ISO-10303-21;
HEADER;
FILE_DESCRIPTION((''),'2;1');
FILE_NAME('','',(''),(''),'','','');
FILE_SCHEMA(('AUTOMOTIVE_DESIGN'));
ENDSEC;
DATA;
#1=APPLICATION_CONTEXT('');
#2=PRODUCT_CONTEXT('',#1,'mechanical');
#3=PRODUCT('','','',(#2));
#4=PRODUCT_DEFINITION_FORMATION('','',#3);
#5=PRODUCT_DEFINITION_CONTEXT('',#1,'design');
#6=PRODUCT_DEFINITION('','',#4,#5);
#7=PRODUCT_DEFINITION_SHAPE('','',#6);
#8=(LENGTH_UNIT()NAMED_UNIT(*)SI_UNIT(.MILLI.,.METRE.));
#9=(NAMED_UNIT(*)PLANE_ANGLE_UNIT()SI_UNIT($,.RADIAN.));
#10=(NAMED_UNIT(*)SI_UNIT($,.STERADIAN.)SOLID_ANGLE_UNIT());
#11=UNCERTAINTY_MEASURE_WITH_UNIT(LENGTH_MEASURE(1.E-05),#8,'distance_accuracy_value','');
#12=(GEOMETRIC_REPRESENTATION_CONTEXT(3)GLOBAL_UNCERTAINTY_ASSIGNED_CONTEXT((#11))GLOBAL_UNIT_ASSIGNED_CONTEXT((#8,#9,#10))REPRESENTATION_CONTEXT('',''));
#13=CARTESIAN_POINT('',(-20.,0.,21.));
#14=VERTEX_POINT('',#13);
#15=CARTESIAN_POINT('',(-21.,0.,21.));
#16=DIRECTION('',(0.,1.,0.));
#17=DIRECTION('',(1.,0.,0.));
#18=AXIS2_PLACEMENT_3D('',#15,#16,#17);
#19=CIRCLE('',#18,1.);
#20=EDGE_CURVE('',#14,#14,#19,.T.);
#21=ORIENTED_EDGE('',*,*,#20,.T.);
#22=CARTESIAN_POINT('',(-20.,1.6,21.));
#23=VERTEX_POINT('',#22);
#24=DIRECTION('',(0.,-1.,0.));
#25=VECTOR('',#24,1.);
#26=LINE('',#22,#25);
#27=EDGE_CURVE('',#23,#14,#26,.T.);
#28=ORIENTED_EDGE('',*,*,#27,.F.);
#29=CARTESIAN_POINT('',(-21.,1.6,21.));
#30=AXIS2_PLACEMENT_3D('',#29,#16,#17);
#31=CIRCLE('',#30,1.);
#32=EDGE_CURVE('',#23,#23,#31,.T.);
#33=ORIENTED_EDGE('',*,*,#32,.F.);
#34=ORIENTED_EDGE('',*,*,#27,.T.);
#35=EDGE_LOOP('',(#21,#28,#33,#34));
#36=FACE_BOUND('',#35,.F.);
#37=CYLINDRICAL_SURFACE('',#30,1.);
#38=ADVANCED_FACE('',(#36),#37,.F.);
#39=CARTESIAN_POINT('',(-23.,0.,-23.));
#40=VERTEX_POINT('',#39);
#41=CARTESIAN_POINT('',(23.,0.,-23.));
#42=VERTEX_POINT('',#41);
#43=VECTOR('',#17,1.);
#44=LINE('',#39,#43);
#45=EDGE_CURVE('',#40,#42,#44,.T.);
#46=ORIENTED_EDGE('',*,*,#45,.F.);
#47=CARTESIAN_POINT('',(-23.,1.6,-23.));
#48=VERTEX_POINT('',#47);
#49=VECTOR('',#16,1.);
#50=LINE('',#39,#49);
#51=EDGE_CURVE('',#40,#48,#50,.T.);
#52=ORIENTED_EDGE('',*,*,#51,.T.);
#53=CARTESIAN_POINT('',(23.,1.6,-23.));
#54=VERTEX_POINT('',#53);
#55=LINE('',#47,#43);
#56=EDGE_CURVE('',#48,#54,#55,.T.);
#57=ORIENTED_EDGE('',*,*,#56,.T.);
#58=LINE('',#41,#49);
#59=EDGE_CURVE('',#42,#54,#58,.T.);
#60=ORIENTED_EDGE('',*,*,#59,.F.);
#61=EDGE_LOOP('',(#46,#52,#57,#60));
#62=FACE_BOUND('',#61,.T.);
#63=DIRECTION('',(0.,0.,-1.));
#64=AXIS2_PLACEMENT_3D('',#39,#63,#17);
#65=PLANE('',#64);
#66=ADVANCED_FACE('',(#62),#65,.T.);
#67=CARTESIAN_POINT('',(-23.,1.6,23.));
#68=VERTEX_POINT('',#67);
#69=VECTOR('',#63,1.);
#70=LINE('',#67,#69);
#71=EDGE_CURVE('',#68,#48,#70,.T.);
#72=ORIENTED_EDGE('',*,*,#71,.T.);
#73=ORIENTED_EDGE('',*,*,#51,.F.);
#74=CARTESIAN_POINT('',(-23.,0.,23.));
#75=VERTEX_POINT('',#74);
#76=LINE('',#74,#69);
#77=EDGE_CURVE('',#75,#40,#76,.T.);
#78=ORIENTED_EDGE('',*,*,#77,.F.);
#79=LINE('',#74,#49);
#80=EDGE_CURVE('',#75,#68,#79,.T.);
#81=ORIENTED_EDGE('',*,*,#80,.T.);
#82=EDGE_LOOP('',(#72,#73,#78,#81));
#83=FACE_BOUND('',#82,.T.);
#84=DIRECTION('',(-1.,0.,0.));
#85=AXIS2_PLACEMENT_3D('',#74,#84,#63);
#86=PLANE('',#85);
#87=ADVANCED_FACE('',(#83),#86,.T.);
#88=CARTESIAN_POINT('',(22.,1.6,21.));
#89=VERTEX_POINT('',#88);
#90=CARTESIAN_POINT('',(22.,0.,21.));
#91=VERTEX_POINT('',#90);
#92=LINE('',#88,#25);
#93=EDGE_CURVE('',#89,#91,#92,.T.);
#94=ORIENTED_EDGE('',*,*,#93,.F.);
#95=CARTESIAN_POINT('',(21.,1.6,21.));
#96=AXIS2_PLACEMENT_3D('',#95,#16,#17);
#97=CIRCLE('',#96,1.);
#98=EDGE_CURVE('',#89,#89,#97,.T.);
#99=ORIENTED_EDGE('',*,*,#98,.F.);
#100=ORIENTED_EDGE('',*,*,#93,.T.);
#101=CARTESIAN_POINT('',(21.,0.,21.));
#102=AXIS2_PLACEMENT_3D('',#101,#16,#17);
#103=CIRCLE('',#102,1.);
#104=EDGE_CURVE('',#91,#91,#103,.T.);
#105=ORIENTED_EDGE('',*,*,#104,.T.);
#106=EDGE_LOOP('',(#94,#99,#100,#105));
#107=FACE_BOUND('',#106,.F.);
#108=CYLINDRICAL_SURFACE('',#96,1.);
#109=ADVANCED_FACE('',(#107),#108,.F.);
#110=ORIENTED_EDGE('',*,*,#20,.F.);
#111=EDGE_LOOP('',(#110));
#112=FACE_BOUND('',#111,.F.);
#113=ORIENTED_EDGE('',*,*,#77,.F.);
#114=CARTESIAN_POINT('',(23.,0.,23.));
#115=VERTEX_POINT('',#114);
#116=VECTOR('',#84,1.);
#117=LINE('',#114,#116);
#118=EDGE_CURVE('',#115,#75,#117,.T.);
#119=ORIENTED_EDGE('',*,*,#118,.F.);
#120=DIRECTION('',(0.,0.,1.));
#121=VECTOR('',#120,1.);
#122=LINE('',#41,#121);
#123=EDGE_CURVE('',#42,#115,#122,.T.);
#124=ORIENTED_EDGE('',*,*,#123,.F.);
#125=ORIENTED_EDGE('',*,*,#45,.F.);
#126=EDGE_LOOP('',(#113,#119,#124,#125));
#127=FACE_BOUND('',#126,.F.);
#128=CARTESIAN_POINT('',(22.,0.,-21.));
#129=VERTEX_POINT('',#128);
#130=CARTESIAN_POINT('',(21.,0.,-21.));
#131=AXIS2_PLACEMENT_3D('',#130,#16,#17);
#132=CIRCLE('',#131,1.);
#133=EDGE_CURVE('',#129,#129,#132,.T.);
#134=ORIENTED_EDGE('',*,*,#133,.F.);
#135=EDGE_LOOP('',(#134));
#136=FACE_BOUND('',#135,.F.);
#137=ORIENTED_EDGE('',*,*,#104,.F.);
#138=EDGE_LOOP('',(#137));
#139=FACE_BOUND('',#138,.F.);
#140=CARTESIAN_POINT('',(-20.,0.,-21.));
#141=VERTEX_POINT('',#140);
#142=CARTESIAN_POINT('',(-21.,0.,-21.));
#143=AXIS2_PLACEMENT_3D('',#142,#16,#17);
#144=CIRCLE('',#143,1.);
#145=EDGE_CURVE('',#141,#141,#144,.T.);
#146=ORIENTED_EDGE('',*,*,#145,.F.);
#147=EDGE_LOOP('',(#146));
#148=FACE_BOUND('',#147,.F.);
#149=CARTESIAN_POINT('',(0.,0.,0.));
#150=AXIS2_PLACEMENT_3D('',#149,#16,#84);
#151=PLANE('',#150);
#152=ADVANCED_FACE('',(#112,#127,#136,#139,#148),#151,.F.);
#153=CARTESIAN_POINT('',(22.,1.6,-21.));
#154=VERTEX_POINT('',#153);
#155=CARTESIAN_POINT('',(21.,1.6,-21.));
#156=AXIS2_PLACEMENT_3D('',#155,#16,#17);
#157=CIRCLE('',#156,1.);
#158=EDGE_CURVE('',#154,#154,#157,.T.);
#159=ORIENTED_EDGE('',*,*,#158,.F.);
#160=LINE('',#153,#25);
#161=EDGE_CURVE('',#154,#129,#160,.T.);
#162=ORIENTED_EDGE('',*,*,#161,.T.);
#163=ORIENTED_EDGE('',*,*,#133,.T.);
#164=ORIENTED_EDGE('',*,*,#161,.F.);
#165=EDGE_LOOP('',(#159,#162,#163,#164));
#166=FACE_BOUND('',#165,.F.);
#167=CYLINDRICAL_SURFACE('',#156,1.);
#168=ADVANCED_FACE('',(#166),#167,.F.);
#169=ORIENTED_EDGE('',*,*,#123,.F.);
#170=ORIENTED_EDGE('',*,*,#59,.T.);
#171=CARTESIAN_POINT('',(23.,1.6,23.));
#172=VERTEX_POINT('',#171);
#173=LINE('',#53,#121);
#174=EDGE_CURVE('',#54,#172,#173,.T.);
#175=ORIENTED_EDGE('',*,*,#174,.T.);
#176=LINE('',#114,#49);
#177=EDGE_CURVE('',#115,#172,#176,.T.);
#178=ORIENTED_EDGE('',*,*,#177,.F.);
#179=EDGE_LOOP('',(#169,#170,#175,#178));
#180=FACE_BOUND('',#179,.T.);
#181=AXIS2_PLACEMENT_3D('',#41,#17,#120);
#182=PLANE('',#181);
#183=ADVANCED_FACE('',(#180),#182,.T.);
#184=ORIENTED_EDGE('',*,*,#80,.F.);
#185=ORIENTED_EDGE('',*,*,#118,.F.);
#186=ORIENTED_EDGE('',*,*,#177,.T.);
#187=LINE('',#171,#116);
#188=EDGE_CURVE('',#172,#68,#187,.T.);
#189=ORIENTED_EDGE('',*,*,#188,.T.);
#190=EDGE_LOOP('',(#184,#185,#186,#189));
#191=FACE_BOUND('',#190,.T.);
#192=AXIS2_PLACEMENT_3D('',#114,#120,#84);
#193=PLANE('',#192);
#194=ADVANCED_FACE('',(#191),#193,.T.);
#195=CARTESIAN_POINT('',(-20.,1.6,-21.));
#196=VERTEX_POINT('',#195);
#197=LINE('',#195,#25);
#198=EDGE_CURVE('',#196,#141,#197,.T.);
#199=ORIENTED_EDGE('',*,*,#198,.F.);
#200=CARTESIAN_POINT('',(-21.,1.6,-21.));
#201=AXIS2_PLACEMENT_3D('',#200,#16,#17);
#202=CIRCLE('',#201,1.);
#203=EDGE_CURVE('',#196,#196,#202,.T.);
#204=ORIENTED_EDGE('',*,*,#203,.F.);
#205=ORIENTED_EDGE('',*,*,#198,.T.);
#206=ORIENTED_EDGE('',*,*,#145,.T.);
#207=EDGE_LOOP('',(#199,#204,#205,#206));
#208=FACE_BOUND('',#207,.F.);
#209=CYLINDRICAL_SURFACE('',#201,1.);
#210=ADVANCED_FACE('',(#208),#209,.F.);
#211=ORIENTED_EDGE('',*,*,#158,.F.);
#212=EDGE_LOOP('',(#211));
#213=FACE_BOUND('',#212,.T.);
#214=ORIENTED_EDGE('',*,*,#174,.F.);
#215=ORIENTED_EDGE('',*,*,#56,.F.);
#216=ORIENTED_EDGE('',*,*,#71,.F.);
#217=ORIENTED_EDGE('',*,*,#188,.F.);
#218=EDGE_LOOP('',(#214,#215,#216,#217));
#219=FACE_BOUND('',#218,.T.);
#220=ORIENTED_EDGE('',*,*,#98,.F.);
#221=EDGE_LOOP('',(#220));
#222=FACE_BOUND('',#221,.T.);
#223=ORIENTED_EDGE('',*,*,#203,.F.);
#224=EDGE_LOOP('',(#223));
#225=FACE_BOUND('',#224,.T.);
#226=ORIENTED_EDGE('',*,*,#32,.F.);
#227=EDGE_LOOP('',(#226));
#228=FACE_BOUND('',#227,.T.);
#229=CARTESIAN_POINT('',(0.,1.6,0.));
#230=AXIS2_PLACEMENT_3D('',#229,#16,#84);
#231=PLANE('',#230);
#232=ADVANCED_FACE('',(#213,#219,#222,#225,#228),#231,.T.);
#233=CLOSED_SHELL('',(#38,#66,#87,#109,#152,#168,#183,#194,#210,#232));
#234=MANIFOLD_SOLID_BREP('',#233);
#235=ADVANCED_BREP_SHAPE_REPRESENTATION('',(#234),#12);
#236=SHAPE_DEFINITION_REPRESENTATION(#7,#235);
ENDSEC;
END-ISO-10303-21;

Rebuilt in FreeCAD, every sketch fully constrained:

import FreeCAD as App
import Part
import Sketcher
Q = App.Units.Quantity

doc = App.newDocument("Part")
params = doc.addObject("Spreadsheet::Sheet", "Params")
for row, (alias, value) in enumerate([
    ("sketch1_width", "46 mm"),
    ("pad1_length", "1.6 mm"),
    ("sketch2_diameter", "2 mm"),
    ("pocket1_length", "1.6 mm"),
], start=1):
    params.set(f"A{row}", alias)
    params.set(f"B{row}", "=" + value)
    params.setAlias(f"B{row}", alias)

body = doc.addObject("PartDesign::Body", "Body")

# Sketch on XZ plane
sketch1 = body.newObject("Sketcher::SketchObject", "Sketch")
sketch1.AttachmentSupport = (doc.getObject("XZ_Plane"), [""])
sketch1.MapMode = "FlatFace"
sketch1.addGeometry([
    Part.LineSegment(App.Vector(-23, 23, 0), App.Vector(23, 23, 0)),
    Part.LineSegment(App.Vector(23, 23, 0), App.Vector(23, -23, 0)),
    Part.LineSegment(App.Vector(23, -23, 0), App.Vector(-23, -23, 0)),
    Part.LineSegment(App.Vector(-23, -23, 0), App.Vector(-23, 23, 0)),
], False)
sketch1.addConstraint([
    Sketcher.Constraint("Coincident", 0, 2, 1, 1),
    Sketcher.Constraint("Coincident", 1, 2, 2, 1),
    Sketcher.Constraint("Coincident", 2, 2, 3, 1),
    Sketcher.Constraint("Coincident", 3, 2, 0, 1),
    Sketcher.Constraint("Horizontal", 0),
    Sketcher.Constraint("Vertical", 1),
    Sketcher.Constraint("Horizontal", 2),
    Sketcher.Constraint("Vertical", 3),
    Sketcher.Constraint("Symmetric", 0, 2, 2, 2, -1, 1),
    Sketcher.Constraint("Equal", 2, 1),
    Sketcher.Constraint("DistanceX", 0, 1, 0, 2, Q("46 mm")),
])
sketch1.setExpression("Constraints[10]", "Params.sketch1_width")
pad1 = body.newObject("PartDesign::Pad", "Pad")
pad1.Profile = sketch1
pad1.setExpression("Length", "Params.pad1_length")
pad1.Reversed = True

# Sketch on XZ plane
sketch2 = body.newObject("Sketcher::SketchObject", "Sketch001")
sketch2.AttachmentSupport = (doc.getObject("XZ_Plane"), [""])
sketch2.MapMode = "FlatFace"
sketch2.AttachmentOffset = App.Placement(App.Vector(0, 0, -1.6), App.Rotation())
sketch2.addGeometry([
    Part.Circle(App.Vector(21, 21, 0), App.Vector(0, 0, 1), 1),
    Part.Circle(App.Vector(21, -21, 0), App.Vector(0, 0, 1), 1),
    Part.Circle(App.Vector(-21, 21, 0), App.Vector(0, 0, 1), 1),
    Part.Circle(App.Vector(-21, -21, 0), App.Vector(0, 0, 1), 1),
], False)
sketch2.addConstraint([
    Sketcher.Constraint("Equal", 0, 1),
    Sketcher.Constraint("Equal", 1, 2),
    Sketcher.Constraint("Equal", 2, 3),
    Sketcher.Constraint("Symmetric", 1, 3, 2, 3, -1, 1),
    Sketcher.Constraint("Symmetric", 0, 3, 3, 3, -1, 1),
    Sketcher.Constraint("Symmetric", 0, 3, 2, 3, -2),
    Sketcher.Constraint("Diameter", 0, Q("2 mm")),
    Sketcher.Constraint("DistanceX", -1, 1, 0, 3, Q("21 mm")),
    Sketcher.Constraint("DistanceY", -1, 1, 0, 3, Q("21 mm")),
])
sketch2.setExpression("Constraints[6]", "Params.sketch2_diameter")
pocket1 = body.newObject("PartDesign::Pocket", "Pocket")
pocket1.Profile = sketch2
pocket1.setExpression("Length", "Params.pocket1_length")
pocket1.Reversed = True

doc.recompute()
